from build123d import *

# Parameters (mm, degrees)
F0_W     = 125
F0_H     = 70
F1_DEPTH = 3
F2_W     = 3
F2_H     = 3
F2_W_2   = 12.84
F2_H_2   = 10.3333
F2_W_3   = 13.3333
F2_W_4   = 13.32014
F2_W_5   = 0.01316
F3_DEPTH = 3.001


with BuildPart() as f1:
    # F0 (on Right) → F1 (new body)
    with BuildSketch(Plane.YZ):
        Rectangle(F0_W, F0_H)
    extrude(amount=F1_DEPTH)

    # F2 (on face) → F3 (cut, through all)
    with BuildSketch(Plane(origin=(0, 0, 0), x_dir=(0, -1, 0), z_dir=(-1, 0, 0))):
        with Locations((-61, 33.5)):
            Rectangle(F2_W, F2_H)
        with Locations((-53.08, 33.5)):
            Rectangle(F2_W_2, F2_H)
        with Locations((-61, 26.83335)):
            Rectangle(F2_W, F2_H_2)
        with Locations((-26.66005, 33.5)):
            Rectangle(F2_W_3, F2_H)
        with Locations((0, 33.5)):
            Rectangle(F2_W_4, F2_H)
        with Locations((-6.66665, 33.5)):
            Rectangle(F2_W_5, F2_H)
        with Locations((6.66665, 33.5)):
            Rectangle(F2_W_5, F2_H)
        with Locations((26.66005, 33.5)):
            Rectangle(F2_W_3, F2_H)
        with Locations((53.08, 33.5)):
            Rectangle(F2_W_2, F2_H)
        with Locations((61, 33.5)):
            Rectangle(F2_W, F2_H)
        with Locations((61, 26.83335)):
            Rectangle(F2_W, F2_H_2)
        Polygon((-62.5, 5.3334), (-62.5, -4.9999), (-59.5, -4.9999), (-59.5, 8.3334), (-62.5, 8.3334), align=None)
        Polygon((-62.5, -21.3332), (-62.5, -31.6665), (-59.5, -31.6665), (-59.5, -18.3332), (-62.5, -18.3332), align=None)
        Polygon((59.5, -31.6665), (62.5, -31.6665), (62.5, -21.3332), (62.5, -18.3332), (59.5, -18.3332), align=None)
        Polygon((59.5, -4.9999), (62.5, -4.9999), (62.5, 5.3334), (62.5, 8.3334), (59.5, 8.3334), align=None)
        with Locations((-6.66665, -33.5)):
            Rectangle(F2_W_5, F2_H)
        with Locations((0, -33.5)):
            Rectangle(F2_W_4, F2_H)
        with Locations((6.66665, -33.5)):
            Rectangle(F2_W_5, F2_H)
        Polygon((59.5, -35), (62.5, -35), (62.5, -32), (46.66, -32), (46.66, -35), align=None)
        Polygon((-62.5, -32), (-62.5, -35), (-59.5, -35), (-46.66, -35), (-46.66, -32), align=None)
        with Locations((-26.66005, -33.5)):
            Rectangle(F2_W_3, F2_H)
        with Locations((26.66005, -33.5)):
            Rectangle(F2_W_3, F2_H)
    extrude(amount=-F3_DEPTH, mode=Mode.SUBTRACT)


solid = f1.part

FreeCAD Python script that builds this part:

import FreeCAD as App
import Part
import Sketcher
from FreeCAD import Vector


def add_polygon(sketch, points):
    """Adds a closed chain of lines whose ends are joined by coincident constraints."""
    first, n = sketch.GeometryCount, len(points)
    for a, b in zip(points, points[1:] + points[:1]):
        sketch.addGeometry(Part.LineSegment(App.Vector(*a, 0), App.Vector(*b, 0)), False)
    for i in range(n):
        sketch.addConstraint(Sketcher.Constraint("Coincident", first + i, 2, first + (i + 1) % n, 1))

doc = App.newDocument("Part")
body = doc.addObject("PartDesign::Body", "Body")

sketch1 = doc.addObject("Sketcher::SketchObject", "Sketch")
body.addObject(sketch1)
sketch1.AttachmentSupport = (doc.YZ_Plane, [""])
sketch1.MapMode = "FlatFace"
add_polygon(sketch1, [(-62, 35), (-62, -35), (62, -35), (62, 35)])
sketch1.addConstraint([
    Sketcher.Constraint("Vertical", 0),
    Sketcher.Constraint("Horizontal", 1),
    Sketcher.Constraint("Vertical", 2),
    Sketcher.Constraint("Horizontal", 3),
    Sketcher.Constraint("Symmetric", 0, 2, 2, 2, -1, 1),
    Sketcher.Constraint("DistanceX", 1, 1, 1, 2, 125.0),
    Sketcher.Constraint("DistanceY", 0, 2, 0, 1, 70.0),
])
pad1 = doc.addObject("PartDesign::Pad", "Pad")
body.addObject(pad1)
pad1.Profile = sketch1
pad1.Length = 3

sketch2 = doc.addObject("Sketcher::SketchObject", "Sketch001")
body.addObject(sketch2)
sketch2.AttachmentSupport = (doc.YZ_Plane, [""])
sketch2.MapMode = "FlatFace"
add_polygon(sketch2, [(62.5, 35), (62.5, 21.7), (59.5, 21.7), (59.5, 32), (46.7, 32), (46.7, 35)])
add_polygon(sketch2, [(33.3, 35), (33.3, 32), (20, 32), (20, 35)])
add_polygon(sketch2, [(6.7, 35), (6.7, 32), (-6.7, 32), (-6.7, 35)])
add_polygon(sketch2, [(-20, 35), (-20, 32), (-33.3, 32), (-33.3, 35)])
add_polygon(sketch2, [(-46.7, 35), (-46.7, 32), (-59.5, 32), (-59.5, 21.7), (-62.5, 21.7), (-62.5, 35)])
add_polygon(sketch2, [(62.5, -5), (59.5, -5), (59.5, 8.3), (62.5, 8.3)])
add_polygon(sketch2, [(62.5, -31.7), (59.5, -31.7), (59.5, -18.3), (62.5, -18.3)])
add_polygon(sketch2, [(-59.5, -31.7), (-62.5, -31.7), (-62.5, -18.3), (-59.5, -18.3)])
add_polygon(sketch2, [(-59.5, -5), (-62.5, -5), (-62.5, 8.3), (-59.5, 8.3)])
add_polygon(sketch2, [(6.7, -32), (6.7, -35), (-6.7, -35), (-6.7, -32)])
add_polygon(sketch2, [(-62.5, -35), (-62.5, -32), (-46.7, -32), (-46.7, -35)])
add_polygon(sketch2, [(62.5, -32), (62.5, -35), (46.7, -35), (46.7, -32)])
add_polygon(sketch2, [(33.3, -32), (33.3, -35), (20, -35), (20, -32)])
add_polygon(sketch2, [(-20, -32), (-20, -35), (-33.3, -35), (-33.3, -32)])
sketch2.addConstraint([
    Sketcher.Constraint("Vertical", 0),
    Sketcher.Constraint("Horizontal", 1),
    Sketcher.Constraint("Vertical", 2),
    Sketcher.Constraint("Horizontal", 3),
    Sketcher.Constraint("Vertical", 4),
    Sketcher.Constraint("Horizontal", 5),
    Sketcher.Constraint("Vertical", 6),
    Sketcher.Constraint("Horizontal", 7),
    Sketcher.Constraint("Vertical", 8),
    Sketcher.Constraint("Horizontal", 9),
    Sketcher.Constraint("Vertical", 10),
    Sketcher.Constraint("Horizontal", 11),
    Sketcher.Constraint("Vertical", 12),
    Sketcher.Constraint("Horizontal", 13),
    Sketcher.Constraint("Vertical", 14),
    Sketcher.Constraint("Horizontal", 15),
    Sketcher.Constraint("Vertical", 16),
    Sketcher.Constraint("Horizontal", 17),
    Sketcher.Constraint("Vertical", 18),
    Sketcher.Constraint("Horizontal", 19),
    Sketcher.Constraint("Vertical", 20),
    Sketcher.Constraint("Horizontal", 21),
    Sketcher.Constraint("Vertical", 22),
    Sketcher.Constraint("Horizontal", 23),
    Sketcher.Constraint("Horizontal", 24),
    Sketcher.Constraint("Vertical", 25),
    Sketcher.Constraint("Horizontal", 26),
    Sketcher.Constraint("Vertical", 27),
    Sketcher.Constraint("Horizontal", 28),
    Sketcher.Constraint("Vertical", 29),
    Sketcher.Constraint("Horizontal", 30),
    Sketcher.Constraint("Vertical", 31),
    Sketcher.Constraint("Horizontal", 32),
    Sketcher.Constraint("Vertical", 33),
    Sketcher.Constraint("Horizontal", 34),
    Sketcher.Constraint("Vertical", 35),
    Sketcher.Constraint("Horizontal", 36),
    Sketcher.Constraint("Vertical", 37),
    Sketcher.Constraint("Horizontal", 38),
    Sketcher.Constraint("Vertical", 39),
    Sketcher.Constraint("Vertical", 40),
    Sketcher.Constraint("Horizontal", 41),
    Sketcher.Constraint("Vertical", 42),
    Sketcher.Constraint("Horizontal", 43),
    Sketcher.Constraint("Vertical", 44),
    Sketcher.Constraint("Horizontal", 45),
    Sketcher.Constraint("Vertical", 46),
    Sketcher.Constraint("Horizontal", 47),
    Sketcher.Constraint("Vertical", 48),
    Sketcher.Constraint("Horizontal", 49),
    Sketcher.Constraint("Vertical", 50),
    Sketcher.Constraint("Horizontal", 51),
    Sketcher.Constraint("Vertical", 52),
    Sketcher.Constraint("Horizontal", 53),
    Sketcher.Constraint("Vertical", 54),
    Sketcher.Constraint("Horizontal", 55),
    Sketcher.Constraint("Vertical", 56),
    Sketcher.Constraint("Horizontal", 57),
    Sketcher.Constraint("Vertical", 58),
    Sketcher.Constraint("Horizontal", 59),
    Sketcher.Constraint("Symmetric", 12, 2, 40, 2, -1, 1),
    Sketcher.Constraint("Symmetric", 10, 2, 42, 2, -1, 1),
    Sketcher.Constraint("Symmetric", 3, 2, 45, 2, -1, 1),
    Sketcher.Constraint("Symmetric", 5, 2, 47, 2, -1, 1),
    Sketcher.Constraint("Symmetric", 22, 2, 48, 2, -1, 1),
    Sketcher.Constraint("Symmetric", 18, 2, 50, 2, -1, 1),
    Sketcher.Constraint("Symmetric", 16, 2, 52, 2, -1, 1),
    Sketcher.Constraint("Symmetric", 14, 2, 54, 2, -1, 1),
    Sketcher.Constraint("Symmetric", 8, 2, 56, 2, -1, 1),
    Sketcher.Constraint("Symmetric", 6, 2, 58, 2, -1, 1),
    Sketcher.Constraint("Symmetric", 7, 2, 14, 2, -2),
    Sketcher.Constraint("Symmetric", 9, 2, 16, 2, -2),
    Sketcher.Constraint("Symmetric", 3, 2, 18, 2, -2),
    Sketcher.Constraint("Symmetric", 1, 2, 20, 2, -2),
    Sketcher.Constraint("Symmetric", 5, 2, 22, 2, -2),
    Sketcher.Constraint("Symmetric", 31, 2, 32, 2, -2),
    Sketcher.Constraint("Symmetric", 29, 2, 34, 2, -2),
    Sketcher.Constraint("Symmetric", 27, 2, 36, 2, -2),
    Sketcher.Constraint("Symmetric", 25, 2, 38, 2, -2),
    Sketcher.Constraint("Horizontal", 3, 2, 6, 2),
    Sketcher.Constraint("Horizontal", 5, 2, 8, 2),
    Sketcher.Constraint("Horizontal", 7, 2, 10, 2),
    Sketcher.Constraint("Horizontal", 9, 2, 12, 2),
    Sketcher.Constraint("Vertical", 2, 2, 24, 2),
    Sketcher.Constraint("Vertical", 5, 2, 26, 2),
    Sketcher.Constraint("Vertical", 25, 2, 28, 2),
    Sketcher.Constraint("Vertical", 27, 2, 30, 2),
    Sketcher.Constraint("Vertical", 13, 2, 40, 2),
    Sketcher.Constraint("Equal", 59, 0),
    Sketcher.Constraint("Equal", 38, 4),
    Sketcher.Constraint("Equal", 22, 25),
    Sketcher.Constraint("Equal", 27, 29),
    Sketcher.Constraint("DistanceX", 1, 2, 1, 1, 3.0),
    Sketcher.Constraint("DistanceY", -1, 1, 2, 2, 32.0),
    Sketcher.Constraint("DistanceX", 3, 2, 3, 1, 12.84),
    Sketcher.Constraint("DistanceX", -1, 1, 0, 2, 62.5),
    Sketcher.Constraint("DistanceX", 7, 2, 7, 1, 13.3333),
    Sketcher.Constraint("DistanceX", 11, 2, 11, 1, 13.34646),
    Sketcher.Constraint("DistanceX", -1, 1, 6, 2, 33.3267),
    Sketcher.Constraint("DistanceY", 24, 2, -1, 1, 4.9999),
    Sketcher.Constraint("DistanceY", 28, 2, -1, 1, 31.6665),
])
pocket1 = doc.addObject("PartDesign::Pocket", "Pocket")
body.addObject(pocket1)
pocket1.Profile = sketch2
pocket1.Type = "ThroughAll"
pocket1.Reversed = True

doc.recompute()
